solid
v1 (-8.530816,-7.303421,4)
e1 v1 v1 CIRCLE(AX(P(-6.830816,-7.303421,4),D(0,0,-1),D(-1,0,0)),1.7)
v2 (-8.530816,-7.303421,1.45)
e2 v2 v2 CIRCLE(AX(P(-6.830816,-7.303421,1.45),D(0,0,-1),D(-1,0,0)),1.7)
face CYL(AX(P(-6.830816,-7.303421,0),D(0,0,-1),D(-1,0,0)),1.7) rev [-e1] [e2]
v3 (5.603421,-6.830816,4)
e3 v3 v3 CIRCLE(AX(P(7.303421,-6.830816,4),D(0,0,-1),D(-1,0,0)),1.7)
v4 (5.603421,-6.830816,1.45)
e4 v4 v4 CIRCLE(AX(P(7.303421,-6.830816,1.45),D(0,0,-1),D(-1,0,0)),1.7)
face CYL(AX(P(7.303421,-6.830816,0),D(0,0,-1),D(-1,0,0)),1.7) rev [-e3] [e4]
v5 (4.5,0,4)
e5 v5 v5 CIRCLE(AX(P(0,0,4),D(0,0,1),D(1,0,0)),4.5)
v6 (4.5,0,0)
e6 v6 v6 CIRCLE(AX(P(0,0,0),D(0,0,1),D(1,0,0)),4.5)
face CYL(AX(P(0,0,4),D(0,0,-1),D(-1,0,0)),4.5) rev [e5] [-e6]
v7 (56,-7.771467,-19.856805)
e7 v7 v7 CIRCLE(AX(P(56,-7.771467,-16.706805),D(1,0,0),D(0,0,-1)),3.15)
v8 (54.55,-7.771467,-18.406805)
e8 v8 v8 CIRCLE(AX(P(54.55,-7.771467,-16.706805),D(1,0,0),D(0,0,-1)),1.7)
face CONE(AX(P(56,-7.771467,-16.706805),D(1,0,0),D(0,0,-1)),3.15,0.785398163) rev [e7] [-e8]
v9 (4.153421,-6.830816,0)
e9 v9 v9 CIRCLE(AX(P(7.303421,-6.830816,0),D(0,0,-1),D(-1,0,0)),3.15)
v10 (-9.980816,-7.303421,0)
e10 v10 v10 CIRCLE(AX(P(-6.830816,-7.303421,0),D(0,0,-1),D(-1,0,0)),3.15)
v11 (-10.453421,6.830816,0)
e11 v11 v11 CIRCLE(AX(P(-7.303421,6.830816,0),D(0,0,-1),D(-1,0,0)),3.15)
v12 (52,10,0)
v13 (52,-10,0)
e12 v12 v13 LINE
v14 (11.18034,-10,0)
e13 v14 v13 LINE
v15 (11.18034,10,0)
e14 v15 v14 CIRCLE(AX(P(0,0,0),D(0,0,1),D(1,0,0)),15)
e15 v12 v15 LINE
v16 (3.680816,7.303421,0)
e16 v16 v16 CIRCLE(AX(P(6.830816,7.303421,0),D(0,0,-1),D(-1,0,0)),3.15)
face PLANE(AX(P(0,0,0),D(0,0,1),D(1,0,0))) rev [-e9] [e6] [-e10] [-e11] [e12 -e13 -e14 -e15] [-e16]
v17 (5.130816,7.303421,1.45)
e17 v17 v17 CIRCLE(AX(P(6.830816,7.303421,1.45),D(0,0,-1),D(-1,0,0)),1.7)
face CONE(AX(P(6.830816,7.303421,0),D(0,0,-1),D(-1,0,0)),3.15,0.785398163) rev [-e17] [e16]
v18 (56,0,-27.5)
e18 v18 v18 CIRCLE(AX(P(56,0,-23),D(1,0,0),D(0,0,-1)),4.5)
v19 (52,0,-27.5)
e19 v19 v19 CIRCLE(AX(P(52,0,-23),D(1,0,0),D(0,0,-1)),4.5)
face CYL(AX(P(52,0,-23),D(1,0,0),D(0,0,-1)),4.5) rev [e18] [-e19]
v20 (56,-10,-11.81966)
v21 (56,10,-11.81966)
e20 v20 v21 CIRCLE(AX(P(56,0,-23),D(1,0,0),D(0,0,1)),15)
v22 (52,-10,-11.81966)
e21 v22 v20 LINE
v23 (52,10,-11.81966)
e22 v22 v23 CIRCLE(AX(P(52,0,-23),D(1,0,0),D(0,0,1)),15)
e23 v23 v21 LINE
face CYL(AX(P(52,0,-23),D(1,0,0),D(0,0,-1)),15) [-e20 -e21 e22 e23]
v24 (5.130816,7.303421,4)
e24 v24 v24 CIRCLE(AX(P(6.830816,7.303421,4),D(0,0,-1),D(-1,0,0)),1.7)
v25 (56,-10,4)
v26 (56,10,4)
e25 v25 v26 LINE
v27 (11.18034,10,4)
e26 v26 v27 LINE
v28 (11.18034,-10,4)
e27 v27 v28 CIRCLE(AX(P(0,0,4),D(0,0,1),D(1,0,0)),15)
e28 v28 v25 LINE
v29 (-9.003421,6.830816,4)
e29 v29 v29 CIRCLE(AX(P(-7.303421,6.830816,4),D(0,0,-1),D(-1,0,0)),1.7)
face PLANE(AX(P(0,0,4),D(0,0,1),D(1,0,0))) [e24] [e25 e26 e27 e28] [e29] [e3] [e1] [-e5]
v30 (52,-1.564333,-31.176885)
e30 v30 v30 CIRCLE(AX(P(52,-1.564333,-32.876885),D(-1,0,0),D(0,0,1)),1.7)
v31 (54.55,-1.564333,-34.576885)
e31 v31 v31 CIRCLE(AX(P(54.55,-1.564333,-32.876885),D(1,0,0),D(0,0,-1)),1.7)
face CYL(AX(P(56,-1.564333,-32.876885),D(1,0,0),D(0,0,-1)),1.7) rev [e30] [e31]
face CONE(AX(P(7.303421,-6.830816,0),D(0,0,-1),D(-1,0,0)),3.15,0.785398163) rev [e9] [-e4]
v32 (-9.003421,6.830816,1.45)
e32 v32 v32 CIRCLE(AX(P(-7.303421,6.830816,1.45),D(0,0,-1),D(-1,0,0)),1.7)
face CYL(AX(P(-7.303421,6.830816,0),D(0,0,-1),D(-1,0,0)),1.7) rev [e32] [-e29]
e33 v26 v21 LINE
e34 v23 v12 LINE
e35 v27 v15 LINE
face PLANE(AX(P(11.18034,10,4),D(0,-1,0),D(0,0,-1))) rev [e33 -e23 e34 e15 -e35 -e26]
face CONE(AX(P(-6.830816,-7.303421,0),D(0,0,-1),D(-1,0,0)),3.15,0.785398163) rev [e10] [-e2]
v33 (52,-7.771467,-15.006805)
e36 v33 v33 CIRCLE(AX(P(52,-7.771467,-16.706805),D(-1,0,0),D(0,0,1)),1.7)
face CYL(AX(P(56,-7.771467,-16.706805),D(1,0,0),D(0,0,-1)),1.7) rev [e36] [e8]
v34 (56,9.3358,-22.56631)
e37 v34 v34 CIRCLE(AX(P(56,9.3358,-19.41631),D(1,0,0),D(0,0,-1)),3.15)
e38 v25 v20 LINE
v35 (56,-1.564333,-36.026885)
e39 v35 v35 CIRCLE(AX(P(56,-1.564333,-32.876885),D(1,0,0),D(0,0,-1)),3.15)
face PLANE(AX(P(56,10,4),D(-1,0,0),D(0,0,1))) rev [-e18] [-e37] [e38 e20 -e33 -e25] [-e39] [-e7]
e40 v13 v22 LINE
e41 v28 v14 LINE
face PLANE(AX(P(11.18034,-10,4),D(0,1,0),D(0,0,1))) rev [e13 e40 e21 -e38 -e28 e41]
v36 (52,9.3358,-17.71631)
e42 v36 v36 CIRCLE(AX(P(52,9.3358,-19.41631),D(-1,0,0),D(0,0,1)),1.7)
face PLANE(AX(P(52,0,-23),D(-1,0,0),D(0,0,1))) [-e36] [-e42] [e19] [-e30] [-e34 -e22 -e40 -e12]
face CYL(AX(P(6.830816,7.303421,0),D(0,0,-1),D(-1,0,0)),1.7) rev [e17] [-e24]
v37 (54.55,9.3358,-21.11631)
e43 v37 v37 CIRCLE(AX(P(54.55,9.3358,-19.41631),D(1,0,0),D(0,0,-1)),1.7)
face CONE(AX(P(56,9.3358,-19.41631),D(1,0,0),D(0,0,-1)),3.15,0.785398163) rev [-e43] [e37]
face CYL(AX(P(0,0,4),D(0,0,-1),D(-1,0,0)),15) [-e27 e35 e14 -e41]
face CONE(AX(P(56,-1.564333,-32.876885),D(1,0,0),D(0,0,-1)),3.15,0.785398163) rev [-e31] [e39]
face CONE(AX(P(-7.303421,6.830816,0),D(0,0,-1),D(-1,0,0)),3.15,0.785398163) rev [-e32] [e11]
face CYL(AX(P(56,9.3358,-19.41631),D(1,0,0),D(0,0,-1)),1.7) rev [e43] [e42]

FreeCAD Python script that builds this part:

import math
import FreeCAD as App
import Part
import Sketcher

V = App.Vector

doc = App.newDocument("Part")
body = doc.addObject("PartDesign::Body", "Body")

# Sketch on XY plane
sketch1 = body.newObject("Sketcher::SketchObject", "Sketch")
sketch1.AttachmentSupport = (doc.getObject("XY_Plane"), [""])
sketch1.MapMode = "FlatFace"
sketch1.addGeometry([
    Part.LineSegment(V(56, 10, 0), V(11.2, 10, 0)),  # 0
    Part.ArcOfCircle(Part.Circle(V(0, 0, 0), V(0, 0, 1), 15), math.radians(42), math.radians(318)),  # 1
    Part.LineSegment(V(11.2, -10, 0), V(56, -10, 0)),  # 2
    Part.LineSegment(V(56, -10, 0), V(56, 10, 0)),  # 3
    Part.Circle(V(7.3, -6.8, 0), V(0, 0, 1), 1.5),  # 4
    Part.Circle(V(0, 0, 0), V(0, 0, 1), 4.5),  # 5
    Part.Circle(V(-6.8, -7.3, 0), V(0, 0, 1), 1.5),  # 6
    Part.Circle(V(6.8, 7.3, 0), V(0, 0, 1), 1.5),  # 7
    Part.Circle(V(-7.3, 6.8, 0), V(0, 0, 1), 1.5),  # 8
], False)
sketch1.addConstraint([
    Sketcher.Constraint("Coincident", 0, 2, 1, 1),
    Sketcher.Constraint("Coincident", 1, 2, 2, 1),
    Sketcher.Constraint("Coincident", 2, 2, 3, 1),
    Sketcher.Constraint("Coincident", 3, 2, 0, 1),
    Sketcher.Constraint("Horizontal", 0),
    Sketcher.Constraint("Horizontal", 2),
    Sketcher.Constraint("Vertical", 3),
    Sketcher.Constraint("Coincident", 1, 3, -1, 1),
    Sketcher.Constraint("Coincident", 5, 3, -1, 1),
    Sketcher.Constraint("Equal", 4, 6),
    Sketcher.Constraint("Equal", 6, 7),
    Sketcher.Constraint("Equal", 7, 8),
    Sketcher.Constraint("Symmetric", 6, 3, 7, 3, -1, 1),
    Sketcher.Constraint("Symmetric", 4, 3, 8, 3, -1, 1),
    Sketcher.Constraint("Vertical", 0, 2, 1, 2),
    Sketcher.Constraint("Diameter", 4, 3.0),
    Sketcher.Constraint("Diameter", 5, 9.0),
    Sketcher.Constraint("Radius", 1, 15.0),
    Sketcher.Constraint("DistanceY", 3, 1, 3, 2, 20.0),
    Sketcher.Constraint("DistanceX", -1, 1, 2, 2, 56.0),
    Sketcher.Constraint("DistanceX", -1, 1, 4, 3, 7.303421),
    Sketcher.Constraint("DistanceY", 6, 3, -1, 1, 7.303421),
    Sketcher.Constraint("DistanceY", 4, 3, -1, 1, 6.830816),
    Sketcher.Constraint("DistanceX", 6, 3, -1, 1, 6.830816),
])
pad1 = body.newObject("PartDesign::Pad", "Pad")
pad1.Profile = sketch1
pad1.Length = 4

# Sketch on YZ plane
sketch2 = body.newObject("Sketcher::SketchObject", "Sketch001")
sketch2.AttachmentSupport = (doc.getObject("YZ_Plane"), [""])
sketch2.MapMode = "FlatFace"
sketch2.AttachmentOffset = App.Placement(V(0, 0, 56), App.Rotation())
sketch2.addGeometry([
    Part.LineSegment(V(10, -11.8, 0), V(10, 0, 0)),  # 0
    Part.LineSegment(V(10, 0, 0), V(-10, 0, 0)),  # 1
    Part.LineSegment(V(-10, 0, 0), V(-10, -11.8, 0)),  # 2
    Part.ArcOfCircle(Part.Circle(V(0, -23, 0), V(0, 0, 1), 15), math.radians(132), math.radians(408)),  # 3
    Part.Circle(V(-1.6, -32.9, 0), V(0, 0, 1), 1.5),  # 4
    Part.Circle(V(-7.8, -16.7, 0), V(0, 0, 1), 1.5),  # 5
    Part.Circle(V(0, -23, 0), V(0, 0, 1), 4.5),  # 6
    Part.Circle(V(9.3, -19.4, 0), V(0, 0, 1), 1.5),  # 7
], False)
sketch2.addConstraint([
    Sketcher.Constraint("Coincident", 0, 2, 1, 1),
    Sketcher.Constraint("Coincident", 1, 2, 2, 1),
    Sketcher.Constraint("Coincident", 2, 2, 3, 1),
    Sketcher.Constraint("Coincident", 3, 2, 0, 1),
    Sketcher.Constraint("Vertical", 0),
    Sketcher.Constraint("Horizontal", 1),
    Sketcher.Constraint("Vertical", 2),
    Sketcher.Constraint("Coincident", 6, 3, 3, 3),
    Sketcher.Constraint("Equal", 4, 5),
    Sketcher.Constraint("Equal", 5, 7),
    Sketcher.Constraint("Symmetric", 0, 2, 1, 2, -1, 1),
    Sketcher.Constraint("PointOnObject", 3, 3, -2),
    Sketcher.Constraint("Diameter", 6, 9.0),
    Sketcher.Constraint("Radius", 3, 15.0),
    Sketcher.Constraint("DistanceX", 1, 2, 1, 1, 20.0),
    Sketcher.Constraint("DistanceY", 3, 3, -1, 1, 23.0),
    Sketcher.Constraint("Diameter", 4, 3.000166),
    Sketcher.Constraint("DistanceX", -1, 1, 7, 3, 9.3358),
    Sketcher.Constraint("DistanceY", 7, 3, -1, 1, 19.41631),
    Sketcher.Constraint("DistanceY", 4, 3, 5, 3, 16.17008),
    Sketcher.Constraint("DistanceX", 4, 3, -1, 1, 1.564333),
    Sketcher.Constraint("DistanceY", 4, 3, -1, 1, 32.876885),
    Sketcher.Constraint("DistanceX", 5, 3, -1, 1, 7.771467),
])
pad2 = body.newObject("PartDesign::Pad", "Pad001")
pad2.Profile = sketch2
pad2.Length = 4
pad2.Reversed = True

# Sketch on XY plane
sketch3 = body.newObject("Sketcher::SketchObject", "Sketch002")
sketch3.AttachmentSupport = (doc.getObject("XY_Plane"), [""])
sketch3.MapMode = "FlatFace"
sketch3.addGeometry([
    Part.Circle(V(6.8, 7.3, 0), V(0, 0, 1), 1.7),
    Part.Circle(V(-7.3, 6.8, 0), V(0, 0, 1), 1.7),
    Part.Circle(V(-6.8, -7.3, 0), V(0, 0, 1), 1.7),
    Part.Circle(V(7.3, -6.8, 0), V(0, 0, 1), 1.7),
], False)
sketch3.addConstraint([
    Sketcher.Constraint("Equal", 0, 1),
    Sketcher.Constraint("Equal", 1, 2),
    Sketcher.Constraint("Equal", 2, 3),
    Sketcher.Constraint("Symmetric", 0, 3, 2, 3, -1, 1),
    Sketcher.Constraint("Symmetric", 1, 3, 3, 3, -1, 1),
    Sketcher.Constraint("Diameter", 0, 3.4),
    Sketcher.Constraint("DistanceY", -1, 1, 0, 3, 7.303421),
    Sketcher.Constraint("DistanceX", 1, 3, -1, 1, 7.303421),
    Sketcher.Constraint("DistanceX", -1, 1, 0, 3, 6.830816),
    Sketcher.Constraint("DistanceY", -1, 1, 1, 3, 6.830816),
])
doc.recompute()
hole = body.newObject("PartDesign::Hole", "Hole")
hole.Profile = sketch3
hole.ThreadType = "None"
hole.Diameter = 3.4
hole.DepthType = "ThroughAll"
hole.HoleCutType = "Countersink"
hole.HoleCutDiameter = 6.3
hole.HoleCutCountersinkAngle = 90
hole.Reversed = True

# Sketch on YZ plane
sketch4 = body.newObject("Sketcher::SketchObject", "Sketch003")
sketch4.AttachmentSupport = (doc.getObject("YZ_Plane"), [""])
sketch4.MapMode = "FlatFace"
sketch4.AttachmentOffset = App.Placement(V(0, 0, 56), App.Rotation())
sketch4.addGeometry([
    Part.Circle(V(9.3, -19.4, 0), V(0, 0, 1), 1.7),
    Part.Circle(V(-1.6, -32.9, 0), V(0, 0, 1), 1.7),
    Part.Circle(V(-7.8, -16.7, 0), V(0, 0, 1), 1.7),
], False)
sketch4.addConstraint([
    Sketcher.Constraint("Equal", 0, 1),
    Sketcher.Constraint("Equal", 1, 2),
    Sketcher.Constraint("Diameter", 0, 3.4),
    Sketcher.Constraint("DistanceX", -1, 1, 0, 3, 9.3358),
    Sketcher.Constraint("DistanceY", 0, 3, -1, 1, 19.41631),
    Sketcher.Constraint("DistanceY", 1, 3, 2, 3, 16.17008),
    Sketcher.Constraint("DistanceX", 1, 3, -1, 1, 1.564333),
    Sketcher.Constraint("DistanceY", 1, 3, -1, 1, 32.876885),
    Sketcher.Constraint("DistanceX", 2, 3, -1, 1, 7.771467),
])
doc.recompute()
hole2 = body.newObject("PartDesign::Hole", "Hole001")
hole2.Profile = sketch4
hole2.ThreadType = "None"
hole2.Diameter = 3.4
hole2.DepthType = "ThroughAll"
hole2.HoleCutType = "Countersink"
hole2.HoleCutDiameter = 6.3
hole2.HoleCutCountersinkAngle = 90

doc.recompute()
